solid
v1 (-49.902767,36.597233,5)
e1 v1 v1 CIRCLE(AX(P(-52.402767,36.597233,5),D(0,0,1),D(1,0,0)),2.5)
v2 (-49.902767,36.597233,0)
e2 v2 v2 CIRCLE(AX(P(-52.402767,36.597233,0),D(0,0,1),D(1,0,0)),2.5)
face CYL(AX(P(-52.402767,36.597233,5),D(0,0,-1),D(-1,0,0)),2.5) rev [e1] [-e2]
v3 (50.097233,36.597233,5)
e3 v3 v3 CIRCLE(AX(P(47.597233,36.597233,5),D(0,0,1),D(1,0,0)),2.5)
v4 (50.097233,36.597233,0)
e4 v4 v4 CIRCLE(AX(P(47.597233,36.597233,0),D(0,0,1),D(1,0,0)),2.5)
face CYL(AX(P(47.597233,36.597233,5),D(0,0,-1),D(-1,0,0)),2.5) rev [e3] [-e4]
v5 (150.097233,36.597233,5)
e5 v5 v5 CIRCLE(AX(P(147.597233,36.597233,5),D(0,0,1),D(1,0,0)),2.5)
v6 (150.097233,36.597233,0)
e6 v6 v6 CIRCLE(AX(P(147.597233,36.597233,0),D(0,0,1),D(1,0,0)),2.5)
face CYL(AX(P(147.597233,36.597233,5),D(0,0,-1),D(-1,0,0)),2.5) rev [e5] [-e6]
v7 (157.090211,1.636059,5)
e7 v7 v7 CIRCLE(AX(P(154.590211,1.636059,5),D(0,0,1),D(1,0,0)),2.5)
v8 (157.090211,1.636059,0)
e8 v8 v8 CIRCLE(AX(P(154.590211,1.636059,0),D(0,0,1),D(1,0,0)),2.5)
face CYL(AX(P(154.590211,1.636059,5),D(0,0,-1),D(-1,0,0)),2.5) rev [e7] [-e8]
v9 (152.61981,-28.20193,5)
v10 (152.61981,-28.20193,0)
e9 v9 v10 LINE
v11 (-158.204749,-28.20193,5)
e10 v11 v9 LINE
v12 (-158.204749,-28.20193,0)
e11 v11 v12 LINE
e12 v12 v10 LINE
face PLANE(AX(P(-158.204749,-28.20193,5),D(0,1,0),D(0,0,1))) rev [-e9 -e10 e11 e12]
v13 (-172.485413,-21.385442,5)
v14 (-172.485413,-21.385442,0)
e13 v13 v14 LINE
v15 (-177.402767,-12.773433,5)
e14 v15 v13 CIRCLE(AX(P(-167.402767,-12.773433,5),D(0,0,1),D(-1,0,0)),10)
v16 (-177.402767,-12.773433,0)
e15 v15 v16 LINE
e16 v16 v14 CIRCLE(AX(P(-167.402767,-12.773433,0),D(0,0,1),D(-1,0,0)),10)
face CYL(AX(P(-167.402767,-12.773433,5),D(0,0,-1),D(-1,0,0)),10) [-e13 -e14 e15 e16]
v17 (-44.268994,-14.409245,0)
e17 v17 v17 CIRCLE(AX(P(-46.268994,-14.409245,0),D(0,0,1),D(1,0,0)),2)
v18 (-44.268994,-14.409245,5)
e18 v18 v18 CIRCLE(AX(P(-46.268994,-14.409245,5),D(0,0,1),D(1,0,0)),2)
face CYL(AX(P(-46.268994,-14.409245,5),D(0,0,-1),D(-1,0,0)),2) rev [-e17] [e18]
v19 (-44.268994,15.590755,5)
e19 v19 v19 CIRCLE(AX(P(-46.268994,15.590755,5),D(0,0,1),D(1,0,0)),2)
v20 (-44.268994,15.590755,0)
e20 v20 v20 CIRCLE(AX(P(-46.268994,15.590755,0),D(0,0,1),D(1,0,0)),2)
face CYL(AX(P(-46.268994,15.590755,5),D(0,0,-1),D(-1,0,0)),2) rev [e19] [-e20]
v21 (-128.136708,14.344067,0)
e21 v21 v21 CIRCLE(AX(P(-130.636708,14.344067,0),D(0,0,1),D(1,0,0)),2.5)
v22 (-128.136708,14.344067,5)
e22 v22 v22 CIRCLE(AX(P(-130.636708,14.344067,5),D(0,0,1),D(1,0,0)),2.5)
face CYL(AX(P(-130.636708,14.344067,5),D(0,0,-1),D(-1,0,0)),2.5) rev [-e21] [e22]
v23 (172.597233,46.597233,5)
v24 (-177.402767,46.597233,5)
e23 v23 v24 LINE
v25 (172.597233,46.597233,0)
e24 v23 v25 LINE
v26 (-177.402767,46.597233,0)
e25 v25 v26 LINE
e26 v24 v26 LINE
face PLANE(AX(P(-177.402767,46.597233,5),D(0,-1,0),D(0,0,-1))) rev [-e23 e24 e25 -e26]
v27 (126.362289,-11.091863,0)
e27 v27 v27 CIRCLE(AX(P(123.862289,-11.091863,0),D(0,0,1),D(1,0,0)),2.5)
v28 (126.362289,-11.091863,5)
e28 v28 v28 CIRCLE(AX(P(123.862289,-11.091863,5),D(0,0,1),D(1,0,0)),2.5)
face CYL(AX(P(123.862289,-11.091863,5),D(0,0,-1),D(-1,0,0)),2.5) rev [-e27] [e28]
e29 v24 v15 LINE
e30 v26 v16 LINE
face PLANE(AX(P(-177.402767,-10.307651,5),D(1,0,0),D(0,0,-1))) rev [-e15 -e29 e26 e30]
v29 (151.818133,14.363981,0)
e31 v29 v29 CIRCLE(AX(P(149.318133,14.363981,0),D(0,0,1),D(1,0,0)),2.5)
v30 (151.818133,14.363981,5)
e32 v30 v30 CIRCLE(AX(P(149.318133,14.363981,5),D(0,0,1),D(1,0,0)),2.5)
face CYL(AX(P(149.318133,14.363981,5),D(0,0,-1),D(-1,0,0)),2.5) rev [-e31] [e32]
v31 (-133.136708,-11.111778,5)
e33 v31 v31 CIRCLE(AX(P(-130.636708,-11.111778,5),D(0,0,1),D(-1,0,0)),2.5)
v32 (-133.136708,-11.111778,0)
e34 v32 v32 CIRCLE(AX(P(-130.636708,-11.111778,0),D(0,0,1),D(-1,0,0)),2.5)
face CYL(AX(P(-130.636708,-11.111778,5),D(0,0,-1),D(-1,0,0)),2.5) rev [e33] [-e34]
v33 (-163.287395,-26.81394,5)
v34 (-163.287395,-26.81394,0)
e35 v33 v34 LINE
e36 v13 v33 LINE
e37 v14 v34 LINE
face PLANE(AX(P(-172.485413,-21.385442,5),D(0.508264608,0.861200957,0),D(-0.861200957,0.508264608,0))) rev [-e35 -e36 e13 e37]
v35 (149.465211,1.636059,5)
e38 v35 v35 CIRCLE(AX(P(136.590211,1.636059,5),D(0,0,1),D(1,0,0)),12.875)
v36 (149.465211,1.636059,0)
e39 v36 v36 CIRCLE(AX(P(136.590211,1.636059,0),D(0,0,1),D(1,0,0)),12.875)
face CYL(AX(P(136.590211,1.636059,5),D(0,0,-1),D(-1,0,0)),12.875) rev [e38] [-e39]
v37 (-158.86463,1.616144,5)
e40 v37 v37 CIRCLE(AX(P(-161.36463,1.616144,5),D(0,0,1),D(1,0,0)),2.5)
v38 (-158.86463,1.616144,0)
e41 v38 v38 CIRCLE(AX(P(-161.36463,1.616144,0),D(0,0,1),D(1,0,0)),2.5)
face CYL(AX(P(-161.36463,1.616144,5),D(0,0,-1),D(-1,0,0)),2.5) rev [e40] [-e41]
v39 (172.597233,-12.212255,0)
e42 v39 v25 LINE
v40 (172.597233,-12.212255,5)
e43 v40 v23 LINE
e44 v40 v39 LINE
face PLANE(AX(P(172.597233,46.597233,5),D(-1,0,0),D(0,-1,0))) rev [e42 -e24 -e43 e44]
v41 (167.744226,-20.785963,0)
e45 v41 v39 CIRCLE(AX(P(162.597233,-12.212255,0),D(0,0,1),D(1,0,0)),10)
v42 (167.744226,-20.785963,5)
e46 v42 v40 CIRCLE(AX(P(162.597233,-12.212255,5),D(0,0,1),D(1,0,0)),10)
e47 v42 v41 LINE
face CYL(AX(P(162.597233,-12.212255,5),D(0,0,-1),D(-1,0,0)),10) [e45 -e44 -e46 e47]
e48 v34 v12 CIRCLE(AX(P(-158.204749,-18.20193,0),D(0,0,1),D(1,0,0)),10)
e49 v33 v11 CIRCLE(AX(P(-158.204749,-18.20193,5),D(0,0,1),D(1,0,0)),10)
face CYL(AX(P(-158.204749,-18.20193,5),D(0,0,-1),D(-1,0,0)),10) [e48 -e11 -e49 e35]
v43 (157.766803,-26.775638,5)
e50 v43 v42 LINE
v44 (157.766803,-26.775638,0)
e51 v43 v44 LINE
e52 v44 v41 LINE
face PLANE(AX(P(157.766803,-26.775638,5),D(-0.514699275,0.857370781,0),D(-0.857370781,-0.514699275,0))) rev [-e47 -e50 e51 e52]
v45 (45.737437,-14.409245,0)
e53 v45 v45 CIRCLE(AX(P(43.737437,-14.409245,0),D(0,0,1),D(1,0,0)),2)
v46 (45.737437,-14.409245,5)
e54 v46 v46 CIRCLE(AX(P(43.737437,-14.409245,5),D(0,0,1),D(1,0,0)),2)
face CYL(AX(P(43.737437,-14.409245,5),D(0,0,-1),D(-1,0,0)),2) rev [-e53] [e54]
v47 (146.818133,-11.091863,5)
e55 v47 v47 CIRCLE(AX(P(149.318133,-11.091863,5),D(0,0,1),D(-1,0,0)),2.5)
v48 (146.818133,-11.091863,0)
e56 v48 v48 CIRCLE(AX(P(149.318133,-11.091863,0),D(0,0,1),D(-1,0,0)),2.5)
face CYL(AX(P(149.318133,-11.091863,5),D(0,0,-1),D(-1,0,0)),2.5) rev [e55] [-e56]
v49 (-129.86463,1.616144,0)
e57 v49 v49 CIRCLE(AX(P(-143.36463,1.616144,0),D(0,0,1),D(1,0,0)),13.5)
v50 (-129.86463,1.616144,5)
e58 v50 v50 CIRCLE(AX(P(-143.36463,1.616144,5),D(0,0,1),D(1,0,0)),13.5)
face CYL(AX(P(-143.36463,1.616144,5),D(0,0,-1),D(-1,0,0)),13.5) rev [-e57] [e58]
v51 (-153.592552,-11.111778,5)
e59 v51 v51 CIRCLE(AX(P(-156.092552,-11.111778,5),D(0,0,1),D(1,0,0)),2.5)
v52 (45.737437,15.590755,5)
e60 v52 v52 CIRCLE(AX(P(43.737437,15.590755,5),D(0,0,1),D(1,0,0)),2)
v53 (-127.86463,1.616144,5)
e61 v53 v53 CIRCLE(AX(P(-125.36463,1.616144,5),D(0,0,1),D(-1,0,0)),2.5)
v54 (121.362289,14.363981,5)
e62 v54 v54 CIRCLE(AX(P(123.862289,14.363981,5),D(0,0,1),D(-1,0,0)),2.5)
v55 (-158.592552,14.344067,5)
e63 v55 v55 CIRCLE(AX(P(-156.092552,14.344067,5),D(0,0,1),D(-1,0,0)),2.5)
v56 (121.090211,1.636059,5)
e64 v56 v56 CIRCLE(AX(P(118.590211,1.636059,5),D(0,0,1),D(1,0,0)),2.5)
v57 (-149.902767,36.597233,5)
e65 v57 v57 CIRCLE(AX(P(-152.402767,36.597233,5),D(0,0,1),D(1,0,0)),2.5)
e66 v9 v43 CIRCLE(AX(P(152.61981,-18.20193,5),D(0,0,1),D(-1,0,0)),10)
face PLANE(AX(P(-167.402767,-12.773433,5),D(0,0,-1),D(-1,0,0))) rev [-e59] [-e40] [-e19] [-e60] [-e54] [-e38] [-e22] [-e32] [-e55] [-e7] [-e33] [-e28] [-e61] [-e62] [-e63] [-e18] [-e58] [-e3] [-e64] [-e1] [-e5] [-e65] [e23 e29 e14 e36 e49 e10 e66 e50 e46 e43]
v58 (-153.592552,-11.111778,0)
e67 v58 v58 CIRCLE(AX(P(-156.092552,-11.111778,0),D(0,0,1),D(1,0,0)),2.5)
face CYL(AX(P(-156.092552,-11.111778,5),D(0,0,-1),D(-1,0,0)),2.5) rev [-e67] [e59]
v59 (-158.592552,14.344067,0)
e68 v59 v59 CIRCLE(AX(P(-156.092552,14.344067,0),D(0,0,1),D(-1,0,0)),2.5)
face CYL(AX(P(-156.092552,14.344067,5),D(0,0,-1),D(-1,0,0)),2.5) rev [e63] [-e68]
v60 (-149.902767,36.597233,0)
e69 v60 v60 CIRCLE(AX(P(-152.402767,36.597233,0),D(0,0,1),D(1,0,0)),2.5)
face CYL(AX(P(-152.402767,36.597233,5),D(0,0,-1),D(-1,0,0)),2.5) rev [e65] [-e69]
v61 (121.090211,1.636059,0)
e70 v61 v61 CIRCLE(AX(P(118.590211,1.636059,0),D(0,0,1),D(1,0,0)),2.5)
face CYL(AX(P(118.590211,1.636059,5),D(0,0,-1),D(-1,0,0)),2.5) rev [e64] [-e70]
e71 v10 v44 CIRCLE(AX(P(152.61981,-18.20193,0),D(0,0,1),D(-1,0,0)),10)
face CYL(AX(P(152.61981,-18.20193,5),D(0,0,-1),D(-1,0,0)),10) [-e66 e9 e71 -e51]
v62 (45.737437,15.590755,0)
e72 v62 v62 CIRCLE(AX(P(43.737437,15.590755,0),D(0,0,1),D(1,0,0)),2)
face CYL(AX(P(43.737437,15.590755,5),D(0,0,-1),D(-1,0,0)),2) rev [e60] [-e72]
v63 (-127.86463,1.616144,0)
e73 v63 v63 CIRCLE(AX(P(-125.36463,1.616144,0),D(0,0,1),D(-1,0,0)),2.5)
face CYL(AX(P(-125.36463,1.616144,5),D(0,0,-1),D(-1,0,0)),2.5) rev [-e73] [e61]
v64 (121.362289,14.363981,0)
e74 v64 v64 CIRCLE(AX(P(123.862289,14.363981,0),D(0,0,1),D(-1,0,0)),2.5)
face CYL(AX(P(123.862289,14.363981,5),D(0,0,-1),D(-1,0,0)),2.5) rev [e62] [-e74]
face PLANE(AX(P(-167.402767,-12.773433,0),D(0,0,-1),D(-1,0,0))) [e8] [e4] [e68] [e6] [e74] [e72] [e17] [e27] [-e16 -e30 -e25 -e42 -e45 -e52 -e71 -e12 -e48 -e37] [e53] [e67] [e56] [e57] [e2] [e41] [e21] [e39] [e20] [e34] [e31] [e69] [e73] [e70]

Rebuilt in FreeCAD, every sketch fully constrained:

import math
import FreeCAD as App
import Part
import Sketcher

doc = App.newDocument("Part")
body = doc.addObject("PartDesign::Body", "Body")

# Sketch on XY plane
sketch1 = body.newObject("Sketcher::SketchObject", "Sketch")
sketch1.AttachmentSupport = (doc.getObject("XY_Plane"), [""])
sketch1.MapMode = "FlatFace"
sketch1.addGeometry(Part.LineSegment(App.Vector(172.6, 46.6, 0), App.Vector(-177.4, 46.6, 0)), False)
sketch1.addGeometry(Part.LineSegment(App.Vector(-177.4, 46.6, 0), App.Vector(-177.4, -12.8, 0)), False)
sketch1.addGeometry(Part.ArcOfCircle(Part.Circle(App.Vector(-167.4, -12.8, 0), App.Vector(0, 0, 1), 10), math.radians(180), math.radians(239)), False)
sketch1.addGeometry(Part.LineSegment(App.Vector(-172.5, -21.4, 0), App.Vector(-163.3, -26.8, 0)), False)
sketch1.addGeometry(Part.ArcOfCircle(Part.Circle(App.Vector(-158.2, -18.2, 0), App.Vector(0, 0, 1), 10), math.radians(-121), math.radians(-90)), False)
sketch1.addGeometry(Part.LineSegment(App.Vector(-158.2, -28.2, 0), App.Vector(152.6, -28.2, 0)), False)
sketch1.addGeometry(Part.ArcOfCircle(Part.Circle(App.Vector(152.6, -18.2, 0), App.Vector(0, 0, 1), 10), math.radians(-90), math.radians(-59)), False)
sketch1.addGeometry(Part.LineSegment(App.Vector(157.8, -26.8, 0), App.Vector(167.7, -20.8, 0)), False)
sketch1.addGeometry(Part.ArcOfCircle(Part.Circle(App.Vector(162.6, -12.2, 0), App.Vector(0, 0, 1), 10), math.radians(-59), math.radians(0)), False)
sketch1.addGeometry(Part.LineSegment(App.Vector(172.6, -12.2, 0), App.Vector(172.6, 46.6, 0)), False)
sketch1.addGeometry(Part.Circle(App.Vector(149.3, -11.1, 0), App.Vector(0, 0, 1), 2.5), False)
sketch1.addGeometry(Part.Circle(App.Vector(123.9, -11.1, 0), App.Vector(0, 0, 1), 2.5), False)
sketch1.addGeometry(Part.Circle(App.Vector(43.7, -14.4, 0), App.Vector(0, 0, 1), 2), False)
sketch1.addGeometry(Part.Circle(App.Vector(154.6, 1.6, 0), App.Vector(0, 0, 1), 2.5), False)
sketch1.addGeometry(Part.Circle(App.Vector(136.6, 1.6, 0), App.Vector(0, 0, 1), 12.9), False)
sketch1.addGeometry(Part.Circle(App.Vector(118.6, 1.6, 0), App.Vector(0, 0, 1), 2.5), False)
sketch1.addGeometry(Part.Circle(App.Vector(-46.3, -14.4, 0), App.Vector(0, 0, 1), 2), False)
sketch1.addGeometry(Part.Circle(App.Vector(-130.6, -11.1, 0), App.Vector(0, 0, 1), 2.5), False)
sketch1.addGeometry(Part.Circle(App.Vector(-156.1, -11.1, 0), App.Vector(0, 0, 1), 2.5), False)
sketch1.addGeometry(Part.Circle(App.Vector(-125.4, 1.6, 0), App.Vector(0, 0, 1), 2.5), False)
sketch1.addGeometry(Part.Circle(App.Vector(-143.4, 1.6, 0), App.Vector(0, 0, 1), 13.5), False)
sketch1.addGeometry(Part.Circle(App.Vector(-161.4, 1.6, 0), App.Vector(0, 0, 1), 2.5), False)
sketch1.addGeometry(Part.Circle(App.Vector(149.3, 14.4, 0), App.Vector(0, 0, 1), 2.5), False)
sketch1.addGeometry(Part.Circle(App.Vector(123.9, 14.4, 0), App.Vector(0, 0, 1), 2.5), False)
sketch1.addGeometry(Part.Circle(App.Vector(43.7, 15.6, 0), App.Vector(0, 0, 1), 2), False)
sketch1.addGeometry(Part.Circle(App.Vector(147.6, 36.6, 0), App.Vector(0, 0, 1), 2.5), False)
sketch1.addGeometry(Part.Circle(App.Vector(47.6, 36.6, 0), App.Vector(0, 0, 1), 2.5), False)
sketch1.addGeometry(Part.Circle(App.Vector(-46.3, 15.6, 0), App.Vector(0, 0, 1), 2), False)
sketch1.addGeometry(Part.Circle(App.Vector(-130.6, 14.3, 0), App.Vector(0, 0, 1), 2.5), False)
sketch1.addGeometry(Part.Circle(App.Vector(-156.1, 14.3, 0), App.Vector(0, 0, 1), 2.5), False)
sketch1.addGeometry(Part.Circle(App.Vector(-52.4, 36.6, 0), App.Vector(0, 0, 1), 2.5), False)
sketch1.addGeometry(Part.Circle(App.Vector(-152.4, 36.6, 0), App.Vector(0, 0, 1), 2.5), False)
sketch1.addConstraint(Sketcher.Constraint("Coincident", 0, 2, 1, 1))
sketch1.addConstraint(Sketcher.Constraint("Tangent", 1, 2, 2, 1))
sketch1.addConstraint(Sketcher.Constraint("Tangent", 2, 2, 3, 1))
sketch1.addConstraint(Sketcher.Constraint("Tangent", 3, 2, 4, 1))
sketch1.addConstraint(Sketcher.Constraint("Tangent", 4, 2, 5, 1))
sketch1.addConstraint(Sketcher.Constraint("Tangent", 5, 2, 6, 1))
sketch1.addConstraint(Sketcher.Constraint("Tangent", 6, 2, 7, 1))
sketch1.addConstraint(Sketcher.Constraint("Tangent", 7, 2, 8, 1))
sketch1.addConstraint(Sketcher.Constraint("Tangent", 8, 2, 9, 1))
sketch1.addConstraint(Sketcher.Constraint("Coincident", 9, 2, 0, 1))
sketch1.addConstraint(Sketcher.Constraint("Horizontal", 0))
sketch1.addConstraint(Sketcher.Constraint("Vertical", 1))
sketch1.addConstraint(Sketcher.Constraint("Horizontal", 5))
sketch1.addConstraint(Sketcher.Constraint("Vertical", 9))
sketch1.addConstraint(Sketcher.Constraint("Equal", 2, 4))
sketch1.addConstraint(Sketcher.Constraint("Equal", 4, 6))
sketch1.addConstraint(Sketcher.Constraint("Equal", 6, 8))
sketch1.addConstraint(Sketcher.Constraint("Equal", 10, 11))
sketch1.addConstraint(Sketcher.Constraint("Equal", 11, 13))
sketch1.addConstraint(Sketcher.Constraint("Equal", 13, 15))
sketch1.addConstraint(Sketcher.Constraint("Equal", 12, 16))
sketch1.addConstraint(Sketcher.Constraint("Equal", 15, 17))
sketch1.addConstraint(Sketcher.Constraint("Equal", 17, 18))
sketch1.addConstraint(Sketcher.Constraint("Equal", 18, 19))
sketch1.addConstraint(Sketcher.Constraint("Equal", 19, 21))
sketch1.addConstraint(Sketcher.Constraint("Equal", 21, 22))
sketch1.addConstraint(Sketcher.Constraint("Equal", 22, 23))
sketch1.addConstraint(Sketcher.Constraint("Equal", 16, 24))
sketch1.addConstraint(Sketcher.Constraint("Equal", 23, 25))
sketch1.addConstraint(Sketcher.Constraint("Equal", 25, 26))
sketch1.addConstraint(Sketcher.Constraint("Equal", 24, 27))
sketch1.addConstraint(Sketcher.Constraint("Equal", 26, 28))
sketch1.addConstraint(Sketcher.Constraint("Equal", 28, 29))
sketch1.addConstraint(Sketcher.Constraint("Equal", 29, 30))
sketch1.addConstraint(Sketcher.Constraint("Equal", 30, 31))
sketch1.addConstraint(Sketcher.Constraint("Horizontal", 10, 3, 11, 3))
sketch1.addConstraint(Sketcher.Constraint("Horizontal", 13, 3, 14, 3))
sketch1.addConstraint(Sketcher.Constraint("Horizontal", 14, 3, 15, 3))
sketch1.addConstraint(Sketcher.Constraint("Horizontal", 12, 3, 16, 3))
sketch1.addConstraint(Sketcher.Constraint("Horizontal", 17, 3, 18, 3))
sketch1.addConstraint(Sketcher.Constraint("Horizontal", 19, 3, 20, 3))
sketch1.addConstraint(Sketcher.Constraint("Horizontal", 20, 3, 21, 3))
sketch1.addConstraint(Sketcher.Constraint("Horizontal", 22, 3, 23, 3))
sketch1.addConstraint(Sketcher.Constraint("Horizontal", 25, 3, 26, 3))
sketch1.addConstraint(Sketcher.Constraint("Horizontal", 24, 3, 27, 3))
sketch1.addConstraint(Sketcher.Constraint("Horizontal", 28, 3, 29, 3))
sketch1.addConstraint(Sketcher.Constraint("Horizontal", 26, 3, 30, 3))
sketch1.addConstraint(Sketcher.Constraint("Horizontal", 30, 3, 31, 3))
sketch1.addConstraint(Sketcher.Constraint("Vertical", 10, 3, 22, 3))
sketch1.addConstraint(Sketcher.Constraint("Vertical", 11, 3, 23, 3))
sketch1.addConstraint(Sketcher.Constraint("Vertical", 12, 3, 24, 3))
sketch1.addConstraint(Sketcher.Constraint("Vertical", 16, 3, 27, 3))
sketch1.addConstraint(Sketcher.Constraint("Vertical", 17, 3, 28, 3))
sketch1.addConstraint(Sketcher.Constraint("Vertical", 18, 3, 29, 3))
sketch1.addConstraint(Sketcher.Constraint("Diameter", 10, 5.0))
sketch1.addConstraint(Sketcher.Constraint("Diameter", 12, 4.0))
sketch1.addConstraint(Sketcher.Constraint("Diameter", 20, 27.0))
sketch1.addConstraint(Sketcher.Constraint("Radius", 2, 10.0))
sketch1.addConstraint(Sketcher.Constraint("Diameter", 14, 25.75))
sketch1.addConstraint(Sketcher.Constraint("DistanceX", 0, 2, 0, 1, 350.0))
sketch1.addConstraint(Sketcher.Constraint("DistanceX", 14, 3, 13, 3, 18.0))
sketch1.addConstraint(Sketcher.Constraint("DistanceX", 15, 3, 14, 3, 18.0))
sketch1.addConstraint(Sketcher.Constraint("DistanceX", 20, 3, 19, 3, 18.0))
sketch1.addConstraint(Sketcher.Constraint("DistanceX", 21, 3, 20, 3, 18.0))
sketch1.addConstraint(Sketcher.Constraint("DistanceY", 12, 3, 24, 3, 30.0))
sketch1.addConstraint(Sketcher.Constraint("DistanceX", 0, 2, 31, 3, 25.0))
sketch1.addConstraint(Sketcher.Constraint("DistanceY", 31, 3, 0, 2, 10.0))
sketch1.addConstraint(Sketcher.Constraint("DistanceX", 25, 3, 9, 2, 25.0))
sketch1.addConstraint(Sketcher.Constraint("DistanceX", 5, 1, 5, 2, 310.824559))
sketch1.addConstraint(Sketcher.Constraint("DistanceX", 10, 3, 8, 3, 13.2791))
sketch1.addConstraint(Sketcher.Constraint("DistanceX", 6, 3, 13, 3, 1.970401))
sketch1.addConstraint(Sketcher.Constraint("DistanceY", 2, 3, 29, 3, 27.117499))
sketch1.addConstraint(Sketcher.Constraint("DistanceY", 7, 2, 10, 3, 9.694099))
sketch1.addConstraint(Sketcher.Constraint("Distance", 7, 11.637232))
sketch1.addConstraint(Sketcher.Constraint("DistanceY", 1, 2, 1, 1, 59.370665))
sketch1.addConstraint(Sketcher.Constraint("DistanceY", 9, 1, 9, 2, 58.809488))
sketch1.addConstraint(Sketcher.Constraint("DistanceX", 4, 3, -1, 1, 158.204749))
sketch1.addConstraint(Sketcher.Constraint("DistanceY", 4, 3, -1, 1, 18.20193))
sketch1.addConstraint(Sketcher.Constraint("DistanceX", -1, 1, 11, 3, 123.862289))
sketch1.addConstraint(Sketcher.Constraint("DistanceY", -1, 1, 13, 3, 1.636059))
sketch1.addConstraint(Sketcher.Constraint("DistanceX", 18, 3, -1, 1, 156.092552))
sketch1.addConstraint(Sketcher.Constraint("DistanceX", 19, 3, -1, 1, 125.36463))
sketch1.addConstraint(Sketcher.Constraint("DistanceY", -1, 1, 22, 3, 14.363981))
sketch1.addConstraint(Sketcher.Constraint("DistanceY", 3, 2, -1, 1, 26.81394))
sketch1.addConstraint(Sketcher.Constraint("DistanceX", 12, 3, 11, 3, 80.124852))
sketch1.addConstraint(Sketcher.Constraint("DistanceY", 12, 3, 11, 3, 3.317382))
sketch1.addConstraint(Sketcher.Constraint("DistanceX", 16, 3, 12, 3, 90.006431))
sketch1.addConstraint(Sketcher.Constraint("DistanceX", 4, 3, 17, 3, 27.568041))
sketch1.addConstraint(Sketcher.Constraint("DistanceY", 16, 3, 19, 3, 16.02539))
sketch1.addConstraint(Sketcher.Constraint("DistanceX", 26, 3, 15, 3, 70.992978))
sketch1.addConstraint(Sketcher.Constraint("DistanceX", 28, 3, 30, 3, 78.233941))
sketch1.addConstraint(Sketcher.Constraint("DistanceY", 17, 3, 30, 3, 47.70901))
pad1 = body.newObject("PartDesign::Pad", "Pad")
pad1.Profile = sketch1
pad1.Length = 5

doc.recompute()
